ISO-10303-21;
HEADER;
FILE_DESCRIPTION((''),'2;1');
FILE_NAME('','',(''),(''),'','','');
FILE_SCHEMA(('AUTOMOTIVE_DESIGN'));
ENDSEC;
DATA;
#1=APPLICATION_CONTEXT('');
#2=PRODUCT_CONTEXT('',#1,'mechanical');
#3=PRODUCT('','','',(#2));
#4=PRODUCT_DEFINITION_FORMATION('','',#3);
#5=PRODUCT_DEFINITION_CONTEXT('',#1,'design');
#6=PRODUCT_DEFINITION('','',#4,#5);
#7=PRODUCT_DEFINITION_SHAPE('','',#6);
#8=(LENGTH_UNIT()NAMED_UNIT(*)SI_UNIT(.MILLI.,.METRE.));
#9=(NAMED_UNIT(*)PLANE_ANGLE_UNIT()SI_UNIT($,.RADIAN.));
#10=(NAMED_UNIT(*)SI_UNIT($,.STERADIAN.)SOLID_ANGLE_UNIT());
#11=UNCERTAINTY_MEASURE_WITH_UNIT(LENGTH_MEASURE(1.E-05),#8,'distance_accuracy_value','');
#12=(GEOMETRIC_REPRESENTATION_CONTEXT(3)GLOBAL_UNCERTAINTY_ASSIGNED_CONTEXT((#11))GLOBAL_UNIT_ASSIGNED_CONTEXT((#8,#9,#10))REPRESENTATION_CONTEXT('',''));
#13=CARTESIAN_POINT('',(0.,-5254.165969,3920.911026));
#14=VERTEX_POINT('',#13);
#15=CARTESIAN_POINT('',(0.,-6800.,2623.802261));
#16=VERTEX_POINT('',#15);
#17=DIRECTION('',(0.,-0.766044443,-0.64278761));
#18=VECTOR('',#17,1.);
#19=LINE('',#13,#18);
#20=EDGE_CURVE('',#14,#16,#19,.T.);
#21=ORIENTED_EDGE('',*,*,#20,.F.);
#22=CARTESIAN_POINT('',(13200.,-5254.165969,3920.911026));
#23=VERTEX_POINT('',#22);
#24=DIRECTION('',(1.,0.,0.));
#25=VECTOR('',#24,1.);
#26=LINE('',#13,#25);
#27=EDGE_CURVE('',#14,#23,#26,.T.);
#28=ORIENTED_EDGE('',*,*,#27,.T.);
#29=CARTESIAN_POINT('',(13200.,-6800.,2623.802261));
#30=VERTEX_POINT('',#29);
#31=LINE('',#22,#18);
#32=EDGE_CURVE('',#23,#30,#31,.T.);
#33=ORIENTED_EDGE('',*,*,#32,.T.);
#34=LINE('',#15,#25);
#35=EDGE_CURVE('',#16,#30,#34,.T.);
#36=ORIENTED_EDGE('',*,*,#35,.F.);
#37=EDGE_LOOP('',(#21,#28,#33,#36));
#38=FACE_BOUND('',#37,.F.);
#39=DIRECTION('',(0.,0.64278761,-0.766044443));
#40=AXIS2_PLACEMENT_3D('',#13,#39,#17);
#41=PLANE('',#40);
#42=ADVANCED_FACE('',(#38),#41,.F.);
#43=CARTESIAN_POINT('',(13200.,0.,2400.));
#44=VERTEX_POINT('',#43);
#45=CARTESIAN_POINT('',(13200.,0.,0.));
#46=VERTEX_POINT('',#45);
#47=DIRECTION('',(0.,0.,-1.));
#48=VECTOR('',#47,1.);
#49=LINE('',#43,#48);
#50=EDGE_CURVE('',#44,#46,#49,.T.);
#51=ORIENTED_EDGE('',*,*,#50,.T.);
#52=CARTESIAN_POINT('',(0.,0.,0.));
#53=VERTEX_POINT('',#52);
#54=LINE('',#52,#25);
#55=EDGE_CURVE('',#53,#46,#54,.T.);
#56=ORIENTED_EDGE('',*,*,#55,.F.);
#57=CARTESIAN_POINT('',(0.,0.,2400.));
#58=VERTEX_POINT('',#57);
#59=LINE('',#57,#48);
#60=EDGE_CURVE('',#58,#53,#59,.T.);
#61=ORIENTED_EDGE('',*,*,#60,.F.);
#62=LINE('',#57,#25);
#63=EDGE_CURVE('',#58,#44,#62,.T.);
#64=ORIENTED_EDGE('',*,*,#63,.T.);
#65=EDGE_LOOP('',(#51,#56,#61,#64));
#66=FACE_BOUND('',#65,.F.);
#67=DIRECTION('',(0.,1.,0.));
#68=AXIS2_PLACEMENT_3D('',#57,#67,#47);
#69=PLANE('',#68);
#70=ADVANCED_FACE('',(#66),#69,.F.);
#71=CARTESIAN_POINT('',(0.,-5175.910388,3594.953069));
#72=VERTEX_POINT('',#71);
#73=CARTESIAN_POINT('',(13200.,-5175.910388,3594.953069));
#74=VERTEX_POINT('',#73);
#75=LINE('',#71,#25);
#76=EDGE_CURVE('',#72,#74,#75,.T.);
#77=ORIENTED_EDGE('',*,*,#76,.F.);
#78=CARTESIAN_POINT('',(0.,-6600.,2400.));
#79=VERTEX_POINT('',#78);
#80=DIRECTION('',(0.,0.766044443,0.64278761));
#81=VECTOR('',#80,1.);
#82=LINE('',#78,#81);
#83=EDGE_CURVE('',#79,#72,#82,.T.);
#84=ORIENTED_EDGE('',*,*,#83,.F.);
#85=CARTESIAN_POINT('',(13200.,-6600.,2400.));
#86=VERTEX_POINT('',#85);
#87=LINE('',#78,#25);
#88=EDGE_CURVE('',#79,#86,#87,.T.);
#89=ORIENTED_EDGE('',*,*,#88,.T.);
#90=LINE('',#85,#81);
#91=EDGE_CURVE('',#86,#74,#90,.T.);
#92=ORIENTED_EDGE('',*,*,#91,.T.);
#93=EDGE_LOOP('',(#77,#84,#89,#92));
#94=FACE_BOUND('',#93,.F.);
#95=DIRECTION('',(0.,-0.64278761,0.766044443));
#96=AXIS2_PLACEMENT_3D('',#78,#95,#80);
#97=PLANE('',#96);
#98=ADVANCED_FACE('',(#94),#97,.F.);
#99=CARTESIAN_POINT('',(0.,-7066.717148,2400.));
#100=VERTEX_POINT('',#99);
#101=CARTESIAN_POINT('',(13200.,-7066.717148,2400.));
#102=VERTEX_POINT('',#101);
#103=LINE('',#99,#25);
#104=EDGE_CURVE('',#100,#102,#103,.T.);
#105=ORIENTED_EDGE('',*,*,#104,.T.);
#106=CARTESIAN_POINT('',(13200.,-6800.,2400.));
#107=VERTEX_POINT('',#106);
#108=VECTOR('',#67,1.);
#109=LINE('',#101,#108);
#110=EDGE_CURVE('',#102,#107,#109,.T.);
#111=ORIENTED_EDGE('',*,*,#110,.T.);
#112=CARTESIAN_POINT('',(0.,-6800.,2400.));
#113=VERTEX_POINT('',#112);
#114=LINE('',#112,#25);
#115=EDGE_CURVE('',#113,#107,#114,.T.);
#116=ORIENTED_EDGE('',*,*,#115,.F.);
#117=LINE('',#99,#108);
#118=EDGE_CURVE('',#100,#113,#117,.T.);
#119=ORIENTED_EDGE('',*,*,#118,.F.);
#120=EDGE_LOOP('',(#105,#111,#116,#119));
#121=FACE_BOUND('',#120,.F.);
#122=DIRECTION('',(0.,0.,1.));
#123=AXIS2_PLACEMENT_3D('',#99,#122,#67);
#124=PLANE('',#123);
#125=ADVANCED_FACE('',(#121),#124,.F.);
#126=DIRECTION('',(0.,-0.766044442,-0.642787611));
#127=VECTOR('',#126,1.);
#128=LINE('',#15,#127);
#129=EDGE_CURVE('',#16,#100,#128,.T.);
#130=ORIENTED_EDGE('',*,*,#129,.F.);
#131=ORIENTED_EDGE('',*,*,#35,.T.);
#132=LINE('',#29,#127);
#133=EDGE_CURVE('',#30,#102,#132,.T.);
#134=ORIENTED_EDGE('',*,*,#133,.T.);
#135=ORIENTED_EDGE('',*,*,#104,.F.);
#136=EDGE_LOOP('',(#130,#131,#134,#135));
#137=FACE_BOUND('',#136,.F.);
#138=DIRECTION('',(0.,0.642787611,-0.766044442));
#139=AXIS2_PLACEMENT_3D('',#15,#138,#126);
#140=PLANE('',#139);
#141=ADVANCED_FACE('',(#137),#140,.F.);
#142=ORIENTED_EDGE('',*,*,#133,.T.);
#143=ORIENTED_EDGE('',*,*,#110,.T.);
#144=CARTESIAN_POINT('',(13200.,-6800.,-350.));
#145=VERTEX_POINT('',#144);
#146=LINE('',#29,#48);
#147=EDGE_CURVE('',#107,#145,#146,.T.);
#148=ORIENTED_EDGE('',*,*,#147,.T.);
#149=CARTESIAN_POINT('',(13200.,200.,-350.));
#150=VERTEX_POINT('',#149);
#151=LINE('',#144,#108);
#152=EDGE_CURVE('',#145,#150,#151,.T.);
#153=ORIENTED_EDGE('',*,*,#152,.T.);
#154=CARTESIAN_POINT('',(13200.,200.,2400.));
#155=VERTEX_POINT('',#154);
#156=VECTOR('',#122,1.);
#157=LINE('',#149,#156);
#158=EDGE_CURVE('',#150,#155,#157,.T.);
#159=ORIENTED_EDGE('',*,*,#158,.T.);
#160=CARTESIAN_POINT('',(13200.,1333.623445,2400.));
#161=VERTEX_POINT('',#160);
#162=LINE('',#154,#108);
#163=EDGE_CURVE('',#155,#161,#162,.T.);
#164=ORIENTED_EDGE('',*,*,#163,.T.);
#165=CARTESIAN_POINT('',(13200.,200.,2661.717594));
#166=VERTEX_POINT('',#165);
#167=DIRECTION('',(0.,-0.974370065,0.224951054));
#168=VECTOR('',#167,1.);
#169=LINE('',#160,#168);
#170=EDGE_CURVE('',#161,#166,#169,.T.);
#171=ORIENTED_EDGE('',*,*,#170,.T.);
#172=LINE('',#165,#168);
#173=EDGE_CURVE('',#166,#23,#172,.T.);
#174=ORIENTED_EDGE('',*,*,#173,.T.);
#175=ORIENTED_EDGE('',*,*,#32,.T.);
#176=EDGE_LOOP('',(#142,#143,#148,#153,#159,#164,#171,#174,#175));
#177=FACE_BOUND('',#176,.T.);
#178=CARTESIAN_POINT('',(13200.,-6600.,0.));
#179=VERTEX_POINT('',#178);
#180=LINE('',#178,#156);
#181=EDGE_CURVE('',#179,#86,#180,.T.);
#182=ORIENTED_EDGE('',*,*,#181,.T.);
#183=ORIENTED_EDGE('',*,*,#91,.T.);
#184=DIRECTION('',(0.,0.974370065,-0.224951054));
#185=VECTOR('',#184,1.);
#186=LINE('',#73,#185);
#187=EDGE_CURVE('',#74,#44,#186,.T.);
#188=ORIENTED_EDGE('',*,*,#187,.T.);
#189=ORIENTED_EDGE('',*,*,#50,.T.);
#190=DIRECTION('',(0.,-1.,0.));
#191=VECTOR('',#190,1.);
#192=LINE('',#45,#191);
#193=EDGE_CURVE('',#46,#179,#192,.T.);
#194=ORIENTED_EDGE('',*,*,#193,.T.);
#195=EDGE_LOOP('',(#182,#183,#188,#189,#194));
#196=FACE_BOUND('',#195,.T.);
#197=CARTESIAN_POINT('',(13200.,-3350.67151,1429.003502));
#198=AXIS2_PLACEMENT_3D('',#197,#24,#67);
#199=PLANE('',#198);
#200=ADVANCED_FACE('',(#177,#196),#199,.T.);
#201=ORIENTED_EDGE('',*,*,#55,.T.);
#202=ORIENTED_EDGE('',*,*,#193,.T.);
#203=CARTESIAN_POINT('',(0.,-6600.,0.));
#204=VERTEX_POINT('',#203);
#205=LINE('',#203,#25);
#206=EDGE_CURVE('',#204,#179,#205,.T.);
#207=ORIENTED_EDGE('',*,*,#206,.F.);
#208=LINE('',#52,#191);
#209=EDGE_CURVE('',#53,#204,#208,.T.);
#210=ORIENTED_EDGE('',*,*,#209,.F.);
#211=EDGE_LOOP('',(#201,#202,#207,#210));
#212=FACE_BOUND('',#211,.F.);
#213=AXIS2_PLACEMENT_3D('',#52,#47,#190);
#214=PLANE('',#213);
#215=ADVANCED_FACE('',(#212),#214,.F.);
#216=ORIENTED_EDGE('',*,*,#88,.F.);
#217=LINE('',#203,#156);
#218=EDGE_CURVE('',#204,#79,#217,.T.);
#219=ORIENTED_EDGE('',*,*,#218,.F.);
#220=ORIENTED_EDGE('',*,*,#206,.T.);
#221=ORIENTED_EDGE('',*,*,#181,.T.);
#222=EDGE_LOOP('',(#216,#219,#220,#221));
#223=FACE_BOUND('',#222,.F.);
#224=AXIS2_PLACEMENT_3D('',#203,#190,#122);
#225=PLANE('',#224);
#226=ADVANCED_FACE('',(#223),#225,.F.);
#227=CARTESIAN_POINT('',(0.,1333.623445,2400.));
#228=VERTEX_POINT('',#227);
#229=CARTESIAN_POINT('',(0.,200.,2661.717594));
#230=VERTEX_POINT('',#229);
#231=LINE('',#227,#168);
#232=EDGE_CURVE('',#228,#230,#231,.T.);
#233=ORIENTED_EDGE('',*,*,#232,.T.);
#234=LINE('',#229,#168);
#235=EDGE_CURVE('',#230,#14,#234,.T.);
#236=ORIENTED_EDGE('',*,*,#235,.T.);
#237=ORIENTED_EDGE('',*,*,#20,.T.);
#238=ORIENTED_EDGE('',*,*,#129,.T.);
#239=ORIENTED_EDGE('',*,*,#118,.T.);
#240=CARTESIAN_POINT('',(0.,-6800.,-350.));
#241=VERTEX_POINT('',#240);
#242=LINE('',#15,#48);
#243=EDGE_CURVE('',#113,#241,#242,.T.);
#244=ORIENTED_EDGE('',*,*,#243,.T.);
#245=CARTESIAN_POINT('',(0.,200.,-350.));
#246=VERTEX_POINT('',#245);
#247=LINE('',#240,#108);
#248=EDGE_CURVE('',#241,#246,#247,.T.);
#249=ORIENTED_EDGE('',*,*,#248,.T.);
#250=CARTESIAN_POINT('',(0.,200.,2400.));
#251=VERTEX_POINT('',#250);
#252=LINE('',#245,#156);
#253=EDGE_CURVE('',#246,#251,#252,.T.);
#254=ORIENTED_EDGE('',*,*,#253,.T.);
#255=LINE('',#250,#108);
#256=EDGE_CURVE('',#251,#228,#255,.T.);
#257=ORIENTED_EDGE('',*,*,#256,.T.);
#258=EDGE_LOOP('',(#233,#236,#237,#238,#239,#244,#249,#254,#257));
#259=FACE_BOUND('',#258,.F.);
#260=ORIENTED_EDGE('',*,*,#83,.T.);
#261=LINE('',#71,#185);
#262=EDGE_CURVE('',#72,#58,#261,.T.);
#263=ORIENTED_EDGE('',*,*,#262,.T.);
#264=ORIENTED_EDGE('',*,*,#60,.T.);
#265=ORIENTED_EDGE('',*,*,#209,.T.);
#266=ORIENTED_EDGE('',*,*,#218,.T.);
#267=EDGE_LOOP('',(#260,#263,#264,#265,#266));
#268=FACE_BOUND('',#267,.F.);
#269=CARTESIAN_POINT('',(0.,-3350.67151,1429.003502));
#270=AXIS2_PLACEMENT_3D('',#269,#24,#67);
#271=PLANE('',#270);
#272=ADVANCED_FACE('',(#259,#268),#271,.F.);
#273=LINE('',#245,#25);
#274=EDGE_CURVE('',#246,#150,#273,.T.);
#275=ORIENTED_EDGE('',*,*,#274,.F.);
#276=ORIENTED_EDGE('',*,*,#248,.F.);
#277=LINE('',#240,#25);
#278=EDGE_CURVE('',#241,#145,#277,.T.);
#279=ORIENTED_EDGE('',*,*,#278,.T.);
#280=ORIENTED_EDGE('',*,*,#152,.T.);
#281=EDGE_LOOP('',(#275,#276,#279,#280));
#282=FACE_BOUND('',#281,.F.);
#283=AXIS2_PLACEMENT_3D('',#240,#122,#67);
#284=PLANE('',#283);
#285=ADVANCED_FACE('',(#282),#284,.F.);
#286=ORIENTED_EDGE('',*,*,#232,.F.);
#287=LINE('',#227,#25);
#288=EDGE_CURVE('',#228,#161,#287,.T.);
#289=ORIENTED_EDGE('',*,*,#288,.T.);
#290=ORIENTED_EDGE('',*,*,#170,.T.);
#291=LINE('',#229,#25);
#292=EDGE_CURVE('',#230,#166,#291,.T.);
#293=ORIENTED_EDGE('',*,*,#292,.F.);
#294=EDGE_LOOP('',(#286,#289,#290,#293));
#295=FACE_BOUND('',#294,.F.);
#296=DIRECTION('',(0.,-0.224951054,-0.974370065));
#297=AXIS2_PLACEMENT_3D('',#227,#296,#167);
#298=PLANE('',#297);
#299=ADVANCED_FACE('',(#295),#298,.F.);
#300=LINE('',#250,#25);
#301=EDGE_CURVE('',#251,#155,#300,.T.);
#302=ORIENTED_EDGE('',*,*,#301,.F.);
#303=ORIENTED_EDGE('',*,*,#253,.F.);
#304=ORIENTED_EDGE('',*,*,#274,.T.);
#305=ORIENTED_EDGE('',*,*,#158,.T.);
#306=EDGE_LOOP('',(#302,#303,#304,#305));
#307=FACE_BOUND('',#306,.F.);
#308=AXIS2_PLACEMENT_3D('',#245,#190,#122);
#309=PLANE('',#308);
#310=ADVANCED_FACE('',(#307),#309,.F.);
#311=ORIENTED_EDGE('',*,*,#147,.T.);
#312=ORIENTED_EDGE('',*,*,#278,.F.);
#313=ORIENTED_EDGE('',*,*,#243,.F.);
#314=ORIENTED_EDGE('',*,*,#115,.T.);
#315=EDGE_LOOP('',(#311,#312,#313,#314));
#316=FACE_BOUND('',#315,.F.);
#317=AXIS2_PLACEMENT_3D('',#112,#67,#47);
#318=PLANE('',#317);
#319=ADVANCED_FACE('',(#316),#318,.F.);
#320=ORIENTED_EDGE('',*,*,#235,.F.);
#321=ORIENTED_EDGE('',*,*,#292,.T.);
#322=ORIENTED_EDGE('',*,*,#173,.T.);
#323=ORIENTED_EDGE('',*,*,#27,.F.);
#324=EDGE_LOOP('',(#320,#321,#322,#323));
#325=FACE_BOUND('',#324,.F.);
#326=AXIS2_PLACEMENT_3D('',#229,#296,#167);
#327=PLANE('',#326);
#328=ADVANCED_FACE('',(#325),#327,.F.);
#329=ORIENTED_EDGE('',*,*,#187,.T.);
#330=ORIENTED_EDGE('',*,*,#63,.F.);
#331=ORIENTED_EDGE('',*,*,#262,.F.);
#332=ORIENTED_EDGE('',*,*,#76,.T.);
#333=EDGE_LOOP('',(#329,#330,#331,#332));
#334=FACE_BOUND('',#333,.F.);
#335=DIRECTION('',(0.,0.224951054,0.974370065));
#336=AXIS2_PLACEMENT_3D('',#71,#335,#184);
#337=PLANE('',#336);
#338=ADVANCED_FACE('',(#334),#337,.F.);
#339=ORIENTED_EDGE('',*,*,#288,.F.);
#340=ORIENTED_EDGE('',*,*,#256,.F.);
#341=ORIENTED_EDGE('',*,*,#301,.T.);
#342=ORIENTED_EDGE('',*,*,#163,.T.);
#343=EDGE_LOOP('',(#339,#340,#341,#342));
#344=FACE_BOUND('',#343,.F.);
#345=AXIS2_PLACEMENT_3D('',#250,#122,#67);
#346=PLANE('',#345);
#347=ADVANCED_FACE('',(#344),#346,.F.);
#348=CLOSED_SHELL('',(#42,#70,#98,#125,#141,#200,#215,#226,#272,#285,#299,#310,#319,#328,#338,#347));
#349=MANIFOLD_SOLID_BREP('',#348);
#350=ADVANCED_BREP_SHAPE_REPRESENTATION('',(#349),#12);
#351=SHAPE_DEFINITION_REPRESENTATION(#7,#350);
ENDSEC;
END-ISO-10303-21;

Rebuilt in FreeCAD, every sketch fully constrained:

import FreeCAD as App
import Part
import Sketcher
from FreeCAD import Vector
Q = App.Units.Quantity


def add_polygon(sketch, points):
    """Adds a closed chain of lines whose ends are joined by coincident constraints."""
    first, n = sketch.GeometryCount, len(points)
    for a, b in zip(points, points[1:] + points[:1]):
        sketch.addGeometry(Part.LineSegment(App.Vector(*a, 0), App.Vector(*b, 0)), False)
    for i in range(n):
        sketch.addConstraint(Sketcher.Constraint("Coincident", first + i, 2, first + (i + 1) % n, 1))

doc = App.newDocument("Part")
params = doc.addObject("Spreadsheet::Sheet", "Params")
for row, (alias, value) in enumerate([
    ("sketch1_width", "7000 mm"),
    ("sketch1_width2", "6600 mm"),
    ("sketch1_height", "2750 mm"),
    ("sketch1_height2", "2400 mm"),
    ("pad1_length", "13200 mm"),
], start=1):
    params.set(f"A{row}", alias)
    params.set(f"B{row}", "=" + value)
    params.setAlias(f"B{row}", alias)

body = doc.addObject("PartDesign::Body", "Body")

sketch1 = body.newObject("Sketcher::SketchObject", "Sketch")
sketch1.AttachmentSupport = (doc.getObject("YZ_Plane"), [""])
sketch1.MapMode = "FlatFace"
add_polygon(sketch1, [(200, -350), (200, 2400), (1334, 2400), (200, 2662), (-5254, 3921), (-6800, 2624), (-7067, 2400), (-6800, 2400), (-6800, -350)])
add_polygon(sketch1, [(-5176, 3595), (0, 2400), (0, 0), (-6600, 0), (-6600, 2400)])
sketch1.addConstraint(Sketcher.Constraint("Vertical", 0))
sketch1.addConstraint(Sketcher.Constraint("Horizontal", 1))
sketch1.addConstraint(Sketcher.Constraint("Horizontal", 6))
sketch1.addConstraint(Sketcher.Constraint("Vertical", 7))
sketch1.addConstraint(Sketcher.Constraint("Horizontal", 8))
sketch1.addConstraint(Sketcher.Constraint("Vertical", 10))
sketch1.addConstraint(Sketcher.Constraint("Horizontal", 11))
sketch1.addConstraint(Sketcher.Constraint("Vertical", 12))
sketch1.addConstraint(Sketcher.Constraint("Coincident", 10, 2, -1, 1))
sketch1.addConstraint(Sketcher.Constraint("Parallel", 2, 3))
sketch1.addConstraint(Sketcher.Constraint("Parallel", 4, 5))
sketch1.addConstraint(Sketcher.Constraint("Parallel", 3, 9))
sketch1.addConstraint(Sketcher.Constraint("Parallel", 5, 13))
sketch1.addConstraint(Sketcher.Constraint("Horizontal", 1, 2, 5, 2))
sketch1.addConstraint(Sketcher.Constraint("Horizontal", 6, 2, 9, 2))
sketch1.addConstraint(Sketcher.Constraint("Horizontal", 9, 2, 12, 2))
sketch1.addConstraint(Sketcher.Constraint("Vertical", 0, 2, 2, 2))
sketch1.addConstraint(Sketcher.Constraint("Vertical", 4, 2, 6, 2))
sketch1.addConstraint(Sketcher.Constraint("DistanceX", 8, 1, 8, 2, 7000.0))
sketch1.addConstraint(Sketcher.Constraint("DistanceX", 11, 2, 11, 1, 6600.0))
sketch1.addConstraint(Sketcher.Constraint("DistanceY", 0, 1, 0, 2, 2750.0))
sketch1.addConstraint(Sketcher.Constraint("DistanceY", 10, 2, 10, 1, 2400.0))
sketch1.addConstraint(Sketcher.Constraint("Angle", 2, Q("167 deg")))
sketch1.addConstraint(Sketcher.Constraint("Angle", 4, Q("-140 deg")))
sketch1.addConstraint(Sketcher.Constraint("DistanceX", -1, 1, 0, 2, 200.0))
sketch1.addConstraint(Sketcher.Constraint("Distance", 2, 1163.442398))
sketch1.addConstraint(Sketcher.Constraint("Distance", 3, 5597.632939))
sketch1.setExpression("Constraints[32]", "Params.sketch1_width")
sketch1.setExpression("Constraints[33]", "Params.sketch1_width2")
sketch1.setExpression("Constraints[34]", "Params.sketch1_height")
sketch1.setExpression("Constraints[35]", "Params.sketch1_height2")
pad1 = body.newObject("PartDesign::Pad", "Pad")
pad1.Profile = sketch1
pad1.setExpression("Length", "Params.pad1_length")

doc.recompute()
